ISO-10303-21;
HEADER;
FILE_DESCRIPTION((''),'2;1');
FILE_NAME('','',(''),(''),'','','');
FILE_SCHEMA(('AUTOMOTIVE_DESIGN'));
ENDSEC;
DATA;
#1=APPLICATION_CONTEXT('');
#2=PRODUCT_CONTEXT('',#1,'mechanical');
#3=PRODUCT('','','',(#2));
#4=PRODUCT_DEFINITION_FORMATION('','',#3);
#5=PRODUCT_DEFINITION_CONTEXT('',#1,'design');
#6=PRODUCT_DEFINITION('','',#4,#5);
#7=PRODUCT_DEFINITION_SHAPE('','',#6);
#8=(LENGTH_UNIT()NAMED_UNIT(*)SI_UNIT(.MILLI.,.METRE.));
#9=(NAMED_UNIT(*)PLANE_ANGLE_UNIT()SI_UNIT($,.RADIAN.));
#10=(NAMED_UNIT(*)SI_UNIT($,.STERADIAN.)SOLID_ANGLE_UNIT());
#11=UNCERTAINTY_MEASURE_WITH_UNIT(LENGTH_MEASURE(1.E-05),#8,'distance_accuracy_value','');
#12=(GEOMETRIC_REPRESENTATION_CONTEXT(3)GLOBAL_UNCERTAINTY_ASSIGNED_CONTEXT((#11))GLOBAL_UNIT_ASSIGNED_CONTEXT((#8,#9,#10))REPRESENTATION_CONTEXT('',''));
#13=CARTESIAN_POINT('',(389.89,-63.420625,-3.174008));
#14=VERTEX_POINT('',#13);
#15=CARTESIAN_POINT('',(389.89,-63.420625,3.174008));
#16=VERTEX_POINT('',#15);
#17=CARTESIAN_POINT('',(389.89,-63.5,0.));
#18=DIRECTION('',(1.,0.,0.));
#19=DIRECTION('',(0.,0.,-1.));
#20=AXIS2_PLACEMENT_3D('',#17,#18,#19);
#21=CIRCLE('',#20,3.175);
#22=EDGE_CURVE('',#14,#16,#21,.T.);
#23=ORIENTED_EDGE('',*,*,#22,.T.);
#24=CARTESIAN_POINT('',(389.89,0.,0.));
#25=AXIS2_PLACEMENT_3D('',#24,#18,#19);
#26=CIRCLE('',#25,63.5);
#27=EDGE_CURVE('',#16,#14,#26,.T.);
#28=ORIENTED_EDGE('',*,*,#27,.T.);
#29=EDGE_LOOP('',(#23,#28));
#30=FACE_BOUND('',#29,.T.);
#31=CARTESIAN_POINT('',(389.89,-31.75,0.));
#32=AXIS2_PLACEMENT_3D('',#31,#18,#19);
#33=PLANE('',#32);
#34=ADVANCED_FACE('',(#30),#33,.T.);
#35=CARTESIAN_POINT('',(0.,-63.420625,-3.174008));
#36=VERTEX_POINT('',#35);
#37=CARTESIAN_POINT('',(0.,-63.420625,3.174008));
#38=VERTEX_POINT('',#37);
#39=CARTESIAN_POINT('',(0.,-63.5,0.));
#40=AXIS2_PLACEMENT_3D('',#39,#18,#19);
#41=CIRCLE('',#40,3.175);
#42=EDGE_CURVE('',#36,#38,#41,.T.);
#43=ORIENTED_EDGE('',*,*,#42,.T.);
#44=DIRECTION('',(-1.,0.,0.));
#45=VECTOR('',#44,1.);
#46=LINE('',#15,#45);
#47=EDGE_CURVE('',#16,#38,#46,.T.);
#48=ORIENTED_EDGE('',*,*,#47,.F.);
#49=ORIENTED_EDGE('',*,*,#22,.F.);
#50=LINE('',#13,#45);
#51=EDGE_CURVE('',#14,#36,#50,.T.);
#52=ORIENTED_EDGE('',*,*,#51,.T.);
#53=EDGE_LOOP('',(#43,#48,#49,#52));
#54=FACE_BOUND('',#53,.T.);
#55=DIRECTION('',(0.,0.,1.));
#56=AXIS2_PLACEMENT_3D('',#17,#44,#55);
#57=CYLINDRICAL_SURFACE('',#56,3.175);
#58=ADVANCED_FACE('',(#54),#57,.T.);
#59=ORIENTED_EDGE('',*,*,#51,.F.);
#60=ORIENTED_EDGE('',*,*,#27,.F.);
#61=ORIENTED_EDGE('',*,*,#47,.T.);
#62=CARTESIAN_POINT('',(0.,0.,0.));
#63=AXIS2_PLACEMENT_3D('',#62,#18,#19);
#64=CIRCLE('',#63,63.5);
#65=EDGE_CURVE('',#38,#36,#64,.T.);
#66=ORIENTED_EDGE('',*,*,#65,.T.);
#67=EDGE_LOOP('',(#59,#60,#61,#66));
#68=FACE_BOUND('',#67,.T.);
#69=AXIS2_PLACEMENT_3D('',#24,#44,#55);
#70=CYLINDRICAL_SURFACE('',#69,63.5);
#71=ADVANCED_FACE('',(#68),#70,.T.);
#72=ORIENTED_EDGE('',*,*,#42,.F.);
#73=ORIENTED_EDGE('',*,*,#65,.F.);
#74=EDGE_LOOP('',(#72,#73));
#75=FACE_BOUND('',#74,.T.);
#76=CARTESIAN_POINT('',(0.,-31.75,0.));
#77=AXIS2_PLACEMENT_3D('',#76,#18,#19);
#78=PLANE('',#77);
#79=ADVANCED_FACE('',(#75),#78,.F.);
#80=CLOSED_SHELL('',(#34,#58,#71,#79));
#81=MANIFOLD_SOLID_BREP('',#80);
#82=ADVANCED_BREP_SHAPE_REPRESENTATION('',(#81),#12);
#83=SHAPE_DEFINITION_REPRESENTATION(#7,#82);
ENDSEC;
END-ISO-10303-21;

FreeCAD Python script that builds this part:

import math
import FreeCAD as App
import Part
import Sketcher
Q = App.Units.Quantity

doc = App.newDocument("Part")
body = doc.addObject("PartDesign::Body", "Body")

# Sketch on YZ plane
sketch1 = body.newObject("Sketcher::SketchObject", "Sketch")
sketch1.AttachmentSupport = (doc.getObject("YZ_Plane"), [""])
sketch1.MapMode = "FlatFace"
sketch1.addGeometry([
    Part.ArcOfCircle(Part.Circle(App.Vector(0, 0, 0), App.Vector(0, 0, 1), 63.5), math.radians(177.13), math.radians(182.87)),
    Part.ArcOfCircle(Part.Circle(App.Vector(-63.5, 0, 0), App.Vector(0, 0, 1), 3.2), math.radians(-89), math.radians(89)),
], False)
sketch1.addConstraint([
    Sketcher.Constraint("Coincident", 0, 1, 1, 2),
    Sketcher.Constraint("Coincident", 1, 1, 0, 2),
    Sketcher.Constraint("Coincident", 0, 3, -1, 1),
    Sketcher.Constraint("PointOnObject", 1, 3, -1),
    Sketcher.Constraint("Radius", 0, Q("2.5 in")),
    Sketcher.Constraint("Radius", 1, Q("0.125 in")),
    Sketcher.Constraint("DistanceX", 1, 3, -1, 1, Q("2.5 in")),
])
pad1 = body.newObject("PartDesign::Pad", "Pad")
pad1.Profile = sketch1
pad1.Length = Q("15.35 in")

doc.recompute()
